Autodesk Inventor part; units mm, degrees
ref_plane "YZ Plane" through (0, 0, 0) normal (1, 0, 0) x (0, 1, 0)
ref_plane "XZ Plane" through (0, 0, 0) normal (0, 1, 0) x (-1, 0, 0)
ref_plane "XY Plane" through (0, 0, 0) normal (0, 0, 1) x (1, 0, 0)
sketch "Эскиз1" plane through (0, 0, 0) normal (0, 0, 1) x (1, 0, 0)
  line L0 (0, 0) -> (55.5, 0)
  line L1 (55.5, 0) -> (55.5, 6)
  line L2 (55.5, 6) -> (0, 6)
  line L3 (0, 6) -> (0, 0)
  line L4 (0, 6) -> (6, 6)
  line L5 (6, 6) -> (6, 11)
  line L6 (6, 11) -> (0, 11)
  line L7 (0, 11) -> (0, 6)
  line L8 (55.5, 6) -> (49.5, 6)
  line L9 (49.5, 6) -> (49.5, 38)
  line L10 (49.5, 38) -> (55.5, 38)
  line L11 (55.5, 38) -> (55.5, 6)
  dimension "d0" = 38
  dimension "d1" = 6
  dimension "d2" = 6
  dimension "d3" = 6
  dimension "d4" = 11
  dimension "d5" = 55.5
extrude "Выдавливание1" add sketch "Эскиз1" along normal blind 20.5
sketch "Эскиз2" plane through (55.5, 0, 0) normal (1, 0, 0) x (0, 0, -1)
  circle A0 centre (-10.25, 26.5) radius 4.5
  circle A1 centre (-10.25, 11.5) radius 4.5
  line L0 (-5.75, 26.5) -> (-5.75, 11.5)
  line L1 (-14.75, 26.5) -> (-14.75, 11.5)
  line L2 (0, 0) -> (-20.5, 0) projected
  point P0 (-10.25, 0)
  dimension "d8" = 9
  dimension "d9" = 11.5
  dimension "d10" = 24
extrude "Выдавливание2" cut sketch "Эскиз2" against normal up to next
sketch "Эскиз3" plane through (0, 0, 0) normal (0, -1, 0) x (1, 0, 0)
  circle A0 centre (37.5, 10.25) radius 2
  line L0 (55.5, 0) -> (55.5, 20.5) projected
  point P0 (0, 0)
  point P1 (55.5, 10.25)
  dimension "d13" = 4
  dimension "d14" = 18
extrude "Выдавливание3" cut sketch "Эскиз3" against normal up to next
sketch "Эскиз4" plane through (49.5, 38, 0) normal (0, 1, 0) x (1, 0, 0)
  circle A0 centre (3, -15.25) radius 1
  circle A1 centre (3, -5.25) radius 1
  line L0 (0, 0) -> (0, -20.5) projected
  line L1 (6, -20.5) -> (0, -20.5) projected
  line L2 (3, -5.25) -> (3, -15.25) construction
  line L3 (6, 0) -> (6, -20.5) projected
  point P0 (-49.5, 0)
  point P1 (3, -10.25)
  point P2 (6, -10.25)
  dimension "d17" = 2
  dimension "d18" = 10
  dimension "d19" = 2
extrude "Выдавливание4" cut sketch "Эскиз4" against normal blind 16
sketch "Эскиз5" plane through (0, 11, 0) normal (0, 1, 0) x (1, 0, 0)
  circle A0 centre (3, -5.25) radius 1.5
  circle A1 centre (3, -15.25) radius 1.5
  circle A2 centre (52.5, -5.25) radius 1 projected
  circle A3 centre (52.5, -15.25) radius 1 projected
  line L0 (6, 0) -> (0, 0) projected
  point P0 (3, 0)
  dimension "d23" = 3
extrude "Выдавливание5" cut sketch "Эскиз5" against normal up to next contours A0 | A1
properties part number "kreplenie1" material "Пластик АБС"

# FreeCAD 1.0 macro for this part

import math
import FreeCAD as App
import Part
import Sketcher
from FreeCAD import Vector

doc = App.newDocument("Part")
body = doc.addObject("PartDesign::Body", "Body")

sketch1 = doc.addObject("Sketcher::SketchObject", "Sketch")
body.addObject(sketch1)
sketch1.AttachmentSupport = (doc.XY_Plane, [""])
sketch1.MapMode = "FlatFace"
sketch1.addGeometry(Part.LineSegment(Vector(0, 0, 0), Vector(55.5, 0, 0)), False)
sketch1.addGeometry(Part.LineSegment(Vector(55.5, 0, 0), Vector(55.5, 38, 0)), False)
sketch1.addGeometry(Part.LineSegment(Vector(55.5, 38, 0), Vector(49.5, 38, 0)), False)
sketch1.addGeometry(Part.LineSegment(Vector(49.5, 38, 0), Vector(49.5, 6, 0)), False)
sketch1.addGeometry(Part.LineSegment(Vector(49.5, 6, 0), Vector(6, 6, 0)), False)
sketch1.addGeometry(Part.LineSegment(Vector(6, 6, 0), Vector(6, 11, 0)), False)
sketch1.addGeometry(Part.LineSegment(Vector(6, 11, 0), Vector(0, 11, 0)), False)
sketch1.addGeometry(Part.LineSegment(Vector(0, 11, 0), Vector(0, 0, 0)), False)
sketch1.addConstraint(Sketcher.Constraint("Coincident", 0, 2, 1, 1))
sketch1.addConstraint(Sketcher.Constraint("Coincident", 1, 2, 2, 1))
sketch1.addConstraint(Sketcher.Constraint("Coincident", 2, 2, 3, 1))
sketch1.addConstraint(Sketcher.Constraint("Coincident", 3, 2, 4, 1))
sketch1.addConstraint(Sketcher.Constraint("Coincident", 4, 2, 5, 1))
sketch1.addConstraint(Sketcher.Constraint("Coincident", 5, 2, 6, 1))
sketch1.addConstraint(Sketcher.Constraint("Coincident", 6, 2, 7, 1))
sketch1.addConstraint(Sketcher.Constraint("Coincident", 7, 2, 0, 1))
sketch1.addConstraint(Sketcher.Constraint("Horizontal", 0))
sketch1.addConstraint(Sketcher.Constraint("Vertical", 1))
sketch1.addConstraint(Sketcher.Constraint("Horizontal", 2))
sketch1.addConstraint(Sketcher.Constraint("Vertical", 3))
sketch1.addConstraint(Sketcher.Constraint("Horizontal", 4))
sketch1.addConstraint(Sketcher.Constraint("Vertical", 5))
sketch1.addConstraint(Sketcher.Constraint("Horizontal", 6))
sketch1.addConstraint(Sketcher.Constraint("Vertical", 7))
sketch1.addConstraint(Sketcher.Constraint("Coincident", 7, 2, -1, 1))
sketch1.addConstraint(Sketcher.Constraint("Equal", 2, 6))
sketch1.addConstraint(Sketcher.Constraint("DistanceX", 2, 2, 2, 1, 6.0))
sketch1.addConstraint(Sketcher.Constraint("DistanceY", 1, 1, 1, 2, 38.0))
sketch1.addConstraint(Sketcher.Constraint("DistanceY", 7, 2, 7, 1, 11.0))
sketch1.addConstraint(Sketcher.Constraint("DistanceX", 0, 1, 0, 2, 55.5))
sketch1.addConstraint(Sketcher.Constraint("DistanceY", -1, 1, 3, 2, 6.0))
pad1 = doc.addObject("PartDesign::Pad", "Pad")
body.addObject(pad1)
pad1.Profile = sketch1
pad1.Length = 20.5

sketch2 = doc.addObject("Sketcher::SketchObject", "Sketch001")
body.addObject(sketch2)
sketch2.AttachmentSupport = (doc.YZ_Plane, [""])
sketch2.MapMode = "FlatFace"
sketch2.AttachmentOffset = App.Placement(Vector(0, 0, 55.5), App.Rotation())
sketch2.addGeometry(Part.ArcOfCircle(Part.Circle(Vector(26.5, 10.25, 0), Vector(0, 0, 1), 4.5), math.radians(-90), math.radians(90)), False)
sketch2.addGeometry(Part.LineSegment(Vector(26.5, 14.75, 0), Vector(11.5, 14.75, 0)), False)
sketch2.addGeometry(Part.ArcOfCircle(Part.Circle(Vector(11.5, 10.25, 0), Vector(0, 0, 1), 4.5), math.radians(90), math.radians(270)), False)
sketch2.addGeometry(Part.LineSegment(Vector(11.5, 5.75, 0), Vector(26.5, 5.75, 0)), False)
sketch2.addConstraint(Sketcher.Constraint("Tangent", 0, 2, 1, 1))
sketch2.addConstraint(Sketcher.Constraint("Tangent", 1, 2, 2, 1))
sketch2.addConstraint(Sketcher.Constraint("Tangent", 2, 2, 3, 1))
sketch2.addConstraint(Sketcher.Constraint("Tangent", 3, 2, 0, 1))
sketch2.addConstraint(Sketcher.Constraint("Horizontal", 1))
sketch2.addConstraint(Sketcher.Constraint("Horizontal", 3))
sketch2.addConstraint(Sketcher.Constraint("Radius", 0, 4.5))
sketch2.addConstraint(Sketcher.Constraint("DistanceX", -1, 1, 2, 3, 11.5))
sketch2.addConstraint(Sketcher.Constraint("DistanceX", 1, 2, 1, 1, 15.0))
sketch2.addConstraint(Sketcher.Constraint("DistanceY", -1, 1, 0, 3, 10.25))
pocket1 = doc.addObject("PartDesign::Pocket", "Pocket")
body.addObject(pocket1)
pocket1.Profile = sketch2
pocket1.Type = "UpToFirst"

sketch3 = doc.addObject("Sketcher::SketchObject", "Sketch002")
body.addObject(sketch3)
sketch3.AttachmentSupport = (doc.XZ_Plane, [""])
sketch3.MapMode = "FlatFace"
sketch3.addGeometry(Part.Circle(Vector(37.5, 10.25, 0), Vector(0, 0, 1), 2), False)
sketch3.addConstraint(Sketcher.Constraint("Diameter", 0, 4.0))
sketch3.addConstraint(Sketcher.Constraint("DistanceX", -1, 1, 0, 3, 37.5))
sketch3.addConstraint(Sketcher.Constraint("DistanceY", -1, 1, 0, 3, 10.25))
pocket2 = doc.addObject("PartDesign::Pocket", "Pocket001")
body.addObject(pocket2)
pocket2.Profile = sketch3
pocket2.Type = "UpToFirst"

sketch4 = doc.addObject("Sketcher::SketchObject", "Sketch003")
body.addObject(sketch4)
sketch4.AttachmentSupport = (doc.XZ_Plane, [""])
sketch4.MapMode = "FlatFace"
sketch4.AttachmentOffset = App.Placement(Vector(0, 0, -38), App.Rotation())
sketch4.addGeometry(Part.Circle(Vector(52.5, 15.25, 0), Vector(0, 0, 1), 1), False)
sketch4.addGeometry(Part.Circle(Vector(52.5, 5.25, 0), Vector(0, 0, 1), 1), False)
sketch4.addConstraint(Sketcher.Constraint("Equal", 0, 1))
sketch4.addConstraint(Sketcher.Constraint("Vertical", 0, 3, 1, 3))
sketch4.addConstraint(Sketcher.Constraint("Diameter", 0, 2.0))
sketch4.addConstraint(Sketcher.Constraint("DistanceY", 1, 3, 0, 3, 10.0))
sketch4.addConstraint(Sketcher.Constraint("DistanceX", -1, 1, 0, 3, 52.5))
sketch4.addConstraint(Sketcher.Constraint("DistanceY", -1, 1, 0, 3, 15.25))
pocket3 = doc.addObject("PartDesign::Pocket", "Pocket002")
body.addObject(pocket3)
pocket3.Profile = sketch4
pocket3.Length = 16
pocket3.Reversed = True

sketch5 = doc.addObject("Sketcher::SketchObject", "Sketch004")
body.addObject(sketch5)
sketch5.AttachmentSupport = (doc.XZ_Plane, [""])
sketch5.MapMode = "FlatFace"
sketch5.AttachmentOffset = App.Placement(Vector(0, 0, -11), App.Rotation())
sketch5.addGeometry(Part.Circle(Vector(3, 5.25, 0), Vector(0, 0, 1), 1.5), False)
sketch5.addGeometry(Part.Circle(Vector(3, 15.25, 0), Vector(0, 0, 1), 1.5), False)
sketch5.addConstraint(Sketcher.Constraint("Equal", 0, 1))
sketch5.addConstraint(Sketcher.Constraint("Vertical", 0, 3, 1, 3))
sketch5.addConstraint(Sketcher.Constraint("Diameter", 0, 3.0))
sketch5.addConstraint(Sketcher.Constraint("DistanceX", -1, 1, 0, 3, 3.0))
sketch5.addConstraint(Sketcher.Constraint("DistanceY", 0, 3, 1, 3, 10.0))
sketch5.addConstraint(Sketcher.Constraint("DistanceY", -1, 1, 0, 3, 5.25))
pocket4 = doc.addObject("PartDesign::Pocket", "Pocket003")
body.addObject(pocket4)
pocket4.Profile = sketch5
pocket4.Type = "UpToFirst"
pocket4.Reversed = True

doc.recompute()
